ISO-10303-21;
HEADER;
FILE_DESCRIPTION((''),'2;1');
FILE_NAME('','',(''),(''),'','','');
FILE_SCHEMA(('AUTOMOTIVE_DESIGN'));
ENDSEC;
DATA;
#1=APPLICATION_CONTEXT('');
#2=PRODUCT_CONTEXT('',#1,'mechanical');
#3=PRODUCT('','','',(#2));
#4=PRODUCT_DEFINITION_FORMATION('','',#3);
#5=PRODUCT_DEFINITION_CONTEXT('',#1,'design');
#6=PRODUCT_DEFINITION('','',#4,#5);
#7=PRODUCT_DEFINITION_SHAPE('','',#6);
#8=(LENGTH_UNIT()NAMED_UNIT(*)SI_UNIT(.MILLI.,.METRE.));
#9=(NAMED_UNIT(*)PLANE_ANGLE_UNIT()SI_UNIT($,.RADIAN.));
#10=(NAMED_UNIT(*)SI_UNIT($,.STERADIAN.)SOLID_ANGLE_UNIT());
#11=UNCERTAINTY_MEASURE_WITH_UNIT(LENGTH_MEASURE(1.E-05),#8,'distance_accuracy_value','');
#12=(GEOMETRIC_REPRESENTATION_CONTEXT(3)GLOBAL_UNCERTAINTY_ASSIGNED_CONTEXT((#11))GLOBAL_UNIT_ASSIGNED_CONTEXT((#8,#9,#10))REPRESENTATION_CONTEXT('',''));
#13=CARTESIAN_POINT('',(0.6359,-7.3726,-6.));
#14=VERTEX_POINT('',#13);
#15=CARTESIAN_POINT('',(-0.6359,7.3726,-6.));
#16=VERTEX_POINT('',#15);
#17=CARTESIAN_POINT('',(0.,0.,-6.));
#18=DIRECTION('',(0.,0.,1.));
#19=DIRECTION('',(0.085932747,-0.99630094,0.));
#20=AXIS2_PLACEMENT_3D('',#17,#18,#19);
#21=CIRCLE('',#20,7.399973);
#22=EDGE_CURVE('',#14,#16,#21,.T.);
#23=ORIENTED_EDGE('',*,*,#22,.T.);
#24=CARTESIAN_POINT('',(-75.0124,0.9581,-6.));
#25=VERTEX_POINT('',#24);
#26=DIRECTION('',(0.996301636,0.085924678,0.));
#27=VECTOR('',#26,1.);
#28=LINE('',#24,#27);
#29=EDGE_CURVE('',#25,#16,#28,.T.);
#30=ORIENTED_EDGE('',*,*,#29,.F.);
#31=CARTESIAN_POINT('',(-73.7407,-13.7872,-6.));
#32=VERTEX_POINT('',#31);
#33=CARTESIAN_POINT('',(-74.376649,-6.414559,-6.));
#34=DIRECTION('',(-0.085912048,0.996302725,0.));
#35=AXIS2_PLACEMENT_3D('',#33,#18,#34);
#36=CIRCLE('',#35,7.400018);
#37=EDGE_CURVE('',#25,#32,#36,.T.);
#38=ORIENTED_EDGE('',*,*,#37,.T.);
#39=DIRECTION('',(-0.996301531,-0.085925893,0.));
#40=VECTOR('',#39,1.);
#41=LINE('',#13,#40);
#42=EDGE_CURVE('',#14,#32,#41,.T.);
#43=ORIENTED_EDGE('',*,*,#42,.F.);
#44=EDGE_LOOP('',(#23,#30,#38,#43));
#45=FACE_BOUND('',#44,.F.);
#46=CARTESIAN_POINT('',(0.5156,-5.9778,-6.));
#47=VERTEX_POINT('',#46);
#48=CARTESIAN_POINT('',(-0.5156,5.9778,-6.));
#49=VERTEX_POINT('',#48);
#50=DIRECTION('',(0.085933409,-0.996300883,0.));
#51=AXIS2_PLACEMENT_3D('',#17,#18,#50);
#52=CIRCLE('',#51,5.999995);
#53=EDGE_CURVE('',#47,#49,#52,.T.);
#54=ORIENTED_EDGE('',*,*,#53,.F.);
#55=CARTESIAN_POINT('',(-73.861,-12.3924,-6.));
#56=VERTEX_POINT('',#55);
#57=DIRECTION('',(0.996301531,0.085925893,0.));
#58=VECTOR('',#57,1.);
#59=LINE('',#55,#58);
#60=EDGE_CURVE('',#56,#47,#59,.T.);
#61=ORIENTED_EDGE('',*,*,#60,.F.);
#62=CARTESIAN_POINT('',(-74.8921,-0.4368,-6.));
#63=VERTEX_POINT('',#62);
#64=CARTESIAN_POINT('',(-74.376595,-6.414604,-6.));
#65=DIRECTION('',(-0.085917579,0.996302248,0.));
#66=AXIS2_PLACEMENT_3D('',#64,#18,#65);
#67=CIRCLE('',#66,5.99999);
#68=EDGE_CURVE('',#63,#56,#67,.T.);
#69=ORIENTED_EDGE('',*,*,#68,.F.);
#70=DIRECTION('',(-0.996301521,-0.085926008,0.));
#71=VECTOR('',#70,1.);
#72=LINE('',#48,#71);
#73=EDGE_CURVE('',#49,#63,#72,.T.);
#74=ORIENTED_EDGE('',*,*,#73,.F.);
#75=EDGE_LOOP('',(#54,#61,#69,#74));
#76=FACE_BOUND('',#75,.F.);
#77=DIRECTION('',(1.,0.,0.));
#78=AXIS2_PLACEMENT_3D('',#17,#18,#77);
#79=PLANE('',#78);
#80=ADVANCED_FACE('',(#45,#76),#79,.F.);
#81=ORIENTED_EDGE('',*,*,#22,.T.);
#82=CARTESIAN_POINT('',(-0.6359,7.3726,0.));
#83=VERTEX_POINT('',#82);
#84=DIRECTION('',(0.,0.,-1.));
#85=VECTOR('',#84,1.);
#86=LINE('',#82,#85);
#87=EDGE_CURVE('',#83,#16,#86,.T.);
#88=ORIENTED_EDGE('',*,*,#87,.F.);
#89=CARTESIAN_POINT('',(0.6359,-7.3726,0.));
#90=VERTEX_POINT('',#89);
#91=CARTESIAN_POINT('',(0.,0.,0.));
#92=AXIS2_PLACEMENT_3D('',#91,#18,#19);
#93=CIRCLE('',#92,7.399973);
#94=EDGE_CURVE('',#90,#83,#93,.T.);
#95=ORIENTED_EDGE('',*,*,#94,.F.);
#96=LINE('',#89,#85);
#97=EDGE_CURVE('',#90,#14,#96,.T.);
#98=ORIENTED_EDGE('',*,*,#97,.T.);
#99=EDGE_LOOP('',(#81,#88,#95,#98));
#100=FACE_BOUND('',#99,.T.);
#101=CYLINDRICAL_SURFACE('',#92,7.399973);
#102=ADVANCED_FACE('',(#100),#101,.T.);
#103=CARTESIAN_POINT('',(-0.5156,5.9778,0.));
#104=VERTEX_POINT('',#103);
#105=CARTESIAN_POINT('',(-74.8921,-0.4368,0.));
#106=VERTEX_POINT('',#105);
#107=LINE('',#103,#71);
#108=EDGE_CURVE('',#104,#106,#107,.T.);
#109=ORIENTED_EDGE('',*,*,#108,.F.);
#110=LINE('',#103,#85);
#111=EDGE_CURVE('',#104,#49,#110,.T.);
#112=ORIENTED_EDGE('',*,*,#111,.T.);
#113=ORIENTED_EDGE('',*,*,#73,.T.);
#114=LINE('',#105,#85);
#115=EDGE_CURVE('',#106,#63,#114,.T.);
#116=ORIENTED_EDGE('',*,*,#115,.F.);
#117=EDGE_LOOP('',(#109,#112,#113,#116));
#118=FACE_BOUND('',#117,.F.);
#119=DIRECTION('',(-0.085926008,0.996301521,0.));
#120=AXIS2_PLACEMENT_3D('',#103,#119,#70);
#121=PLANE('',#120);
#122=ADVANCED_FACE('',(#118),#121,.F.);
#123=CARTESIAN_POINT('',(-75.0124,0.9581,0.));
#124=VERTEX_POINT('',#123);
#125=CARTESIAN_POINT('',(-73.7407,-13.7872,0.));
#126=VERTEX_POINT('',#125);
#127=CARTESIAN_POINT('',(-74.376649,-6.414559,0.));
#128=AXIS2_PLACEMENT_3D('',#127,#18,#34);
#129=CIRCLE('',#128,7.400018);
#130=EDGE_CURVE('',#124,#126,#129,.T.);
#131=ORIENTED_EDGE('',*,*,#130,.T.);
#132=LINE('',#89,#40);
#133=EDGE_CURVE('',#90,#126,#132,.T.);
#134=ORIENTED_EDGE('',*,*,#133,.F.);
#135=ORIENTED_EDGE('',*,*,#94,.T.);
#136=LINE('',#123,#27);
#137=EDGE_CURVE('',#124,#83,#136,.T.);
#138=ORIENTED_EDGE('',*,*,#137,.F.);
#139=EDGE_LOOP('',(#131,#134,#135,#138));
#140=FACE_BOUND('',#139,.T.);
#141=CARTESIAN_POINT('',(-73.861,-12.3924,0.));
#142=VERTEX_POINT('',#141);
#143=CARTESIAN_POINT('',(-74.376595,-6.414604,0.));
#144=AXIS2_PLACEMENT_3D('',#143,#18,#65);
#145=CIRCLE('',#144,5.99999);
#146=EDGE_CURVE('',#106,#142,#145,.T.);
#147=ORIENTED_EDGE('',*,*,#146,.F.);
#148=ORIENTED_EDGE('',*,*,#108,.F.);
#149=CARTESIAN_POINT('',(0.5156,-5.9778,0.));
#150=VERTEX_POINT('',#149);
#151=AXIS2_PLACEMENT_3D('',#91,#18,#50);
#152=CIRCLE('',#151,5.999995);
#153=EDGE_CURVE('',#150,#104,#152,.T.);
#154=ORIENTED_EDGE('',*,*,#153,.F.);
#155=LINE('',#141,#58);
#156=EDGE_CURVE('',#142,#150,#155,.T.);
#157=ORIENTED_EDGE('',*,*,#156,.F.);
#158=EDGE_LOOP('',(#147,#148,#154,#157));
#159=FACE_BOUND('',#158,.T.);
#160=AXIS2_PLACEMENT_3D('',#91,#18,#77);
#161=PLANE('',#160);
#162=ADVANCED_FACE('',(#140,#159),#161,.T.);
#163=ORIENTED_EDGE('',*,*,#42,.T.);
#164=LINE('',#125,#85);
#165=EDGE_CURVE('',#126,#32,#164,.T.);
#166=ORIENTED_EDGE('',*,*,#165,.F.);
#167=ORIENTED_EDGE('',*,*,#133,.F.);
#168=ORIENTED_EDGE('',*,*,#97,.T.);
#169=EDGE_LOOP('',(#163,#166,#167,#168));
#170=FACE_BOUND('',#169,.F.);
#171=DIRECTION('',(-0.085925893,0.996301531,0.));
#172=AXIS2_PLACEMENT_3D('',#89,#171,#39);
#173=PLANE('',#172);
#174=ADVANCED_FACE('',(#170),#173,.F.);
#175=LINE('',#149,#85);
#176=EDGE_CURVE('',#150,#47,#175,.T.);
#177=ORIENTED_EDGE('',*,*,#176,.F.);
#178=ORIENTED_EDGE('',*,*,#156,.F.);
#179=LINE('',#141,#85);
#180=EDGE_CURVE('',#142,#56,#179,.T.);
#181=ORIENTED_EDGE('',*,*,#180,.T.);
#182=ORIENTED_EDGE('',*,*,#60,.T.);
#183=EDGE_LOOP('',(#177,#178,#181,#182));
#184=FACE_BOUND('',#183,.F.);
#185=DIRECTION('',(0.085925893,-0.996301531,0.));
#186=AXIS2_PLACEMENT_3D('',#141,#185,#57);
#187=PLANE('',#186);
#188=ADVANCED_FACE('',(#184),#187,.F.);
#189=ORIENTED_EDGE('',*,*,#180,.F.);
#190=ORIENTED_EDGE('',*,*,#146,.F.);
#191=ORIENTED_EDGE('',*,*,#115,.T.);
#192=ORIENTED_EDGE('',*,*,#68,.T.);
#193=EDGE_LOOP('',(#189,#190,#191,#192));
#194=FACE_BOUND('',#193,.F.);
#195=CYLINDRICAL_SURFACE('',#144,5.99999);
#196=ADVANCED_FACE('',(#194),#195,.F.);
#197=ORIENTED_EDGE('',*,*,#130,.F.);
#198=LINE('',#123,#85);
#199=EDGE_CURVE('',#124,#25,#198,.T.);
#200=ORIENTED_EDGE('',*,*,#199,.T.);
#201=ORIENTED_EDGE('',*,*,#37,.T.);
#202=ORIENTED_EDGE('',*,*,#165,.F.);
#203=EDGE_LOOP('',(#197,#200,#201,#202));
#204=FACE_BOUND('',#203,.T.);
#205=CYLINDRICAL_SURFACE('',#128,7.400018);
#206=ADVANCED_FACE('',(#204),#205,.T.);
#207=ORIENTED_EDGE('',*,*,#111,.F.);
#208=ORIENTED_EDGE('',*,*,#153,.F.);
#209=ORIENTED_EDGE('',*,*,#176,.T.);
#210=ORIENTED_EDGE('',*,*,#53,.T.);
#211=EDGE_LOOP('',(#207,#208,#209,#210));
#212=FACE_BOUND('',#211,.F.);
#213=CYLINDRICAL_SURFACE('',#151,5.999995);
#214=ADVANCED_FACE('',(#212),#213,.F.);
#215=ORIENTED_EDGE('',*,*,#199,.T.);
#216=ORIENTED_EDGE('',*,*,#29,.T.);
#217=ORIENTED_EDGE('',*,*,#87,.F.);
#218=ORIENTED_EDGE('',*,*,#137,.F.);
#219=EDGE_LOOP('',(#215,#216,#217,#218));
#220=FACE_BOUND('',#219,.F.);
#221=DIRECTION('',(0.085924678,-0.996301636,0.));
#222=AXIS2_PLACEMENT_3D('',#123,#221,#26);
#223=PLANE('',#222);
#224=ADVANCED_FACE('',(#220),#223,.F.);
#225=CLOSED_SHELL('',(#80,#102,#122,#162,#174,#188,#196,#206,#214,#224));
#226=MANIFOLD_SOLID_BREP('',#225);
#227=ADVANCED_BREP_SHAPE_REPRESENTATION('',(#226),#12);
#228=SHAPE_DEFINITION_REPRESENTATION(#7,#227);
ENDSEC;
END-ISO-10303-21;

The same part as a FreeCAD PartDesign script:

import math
import FreeCAD as App
import Part
import Sketcher

V = App.Vector
Q = App.Units.Quantity

doc = App.newDocument("Part")
body = doc.addObject("PartDesign::Body", "Body")

# Sketch on XY plane
sketch1 = doc.addObject("Sketcher::SketchObject", "Sketch")
body.addObject(sketch1)
sketch1.AttachmentSupport = (doc.XY_Plane, [""])
sketch1.MapMode = "FlatFace"
sketch1.addGeometry([
    Part.LineSegment(V(-74, -14, 0), V(1, -7, 0)),  # 0
    Part.ArcOfCircle(Part.Circle(V(0, 0, 0), V(0, 0, 1), 7), math.radians(-85), math.radians(95)),  # 1
    Part.LineSegment(V(-1, 7, 0), V(-75, 1, 0)),  # 2
    Part.ArcOfCircle(Part.Circle(V(-74, -6, 0), V(0, 0, 1), 7), math.radians(95), math.radians(275)),  # 3
    Part.ArcOfCircle(Part.Circle(V(0, 0, 0), V(0, 0, 1), 6), math.radians(-85), math.radians(95)),  # 4
    Part.LineSegment(V(1, -6, 0), V(-74, -12, 0)),  # 5
    Part.ArcOfCircle(Part.Circle(V(-74, -6, 0), V(0, 0, 1), 6), math.radians(95), math.radians(275)),  # 6
    Part.LineSegment(V(-75, 0, 0), V(-1, 6, 0)),  # 7
], False)
sketch1.addConstraint([
    Sketcher.Constraint("Tangent", 0, 2, 1, 1),
    Sketcher.Constraint("Tangent", 1, 2, 2, 1),
    Sketcher.Constraint("Tangent", 2, 2, 3, 1),
    Sketcher.Constraint("Tangent", 3, 2, 0, 1),
    Sketcher.Constraint("Tangent", 4, 1, 5, 1),
    Sketcher.Constraint("Tangent", 5, 2, 6, 2),
    Sketcher.Constraint("Tangent", 6, 1, 7, 1),
    Sketcher.Constraint("Tangent", 7, 2, 4, 2),
    Sketcher.Constraint("Coincident", 1, 3, -1, 1),
    Sketcher.Constraint("Coincident", 4, 3, -1, 1),
    Sketcher.Constraint("Coincident", 6, 3, 3, 3),
    Sketcher.Constraint("Equal", 1, 3),
    Sketcher.Constraint("Equal", 4, 6),
    Sketcher.Constraint("Radius", 4, Q("6 mm")),
    Sketcher.Constraint("Radius", 1, Q("7.4 mm")),
    Sketcher.Constraint("Angle", 0, Q("4.9293 deg")),
    Sketcher.Constraint("DistanceY", -1, 1, 2, 2, Q("0.958 mm")),
])
pad1 = doc.addObject("PartDesign::Pad", "Pad")
body.addObject(pad1)
pad1.Profile = sketch1
pad1.Length = 6
pad1.Reversed = True

doc.recompute()
